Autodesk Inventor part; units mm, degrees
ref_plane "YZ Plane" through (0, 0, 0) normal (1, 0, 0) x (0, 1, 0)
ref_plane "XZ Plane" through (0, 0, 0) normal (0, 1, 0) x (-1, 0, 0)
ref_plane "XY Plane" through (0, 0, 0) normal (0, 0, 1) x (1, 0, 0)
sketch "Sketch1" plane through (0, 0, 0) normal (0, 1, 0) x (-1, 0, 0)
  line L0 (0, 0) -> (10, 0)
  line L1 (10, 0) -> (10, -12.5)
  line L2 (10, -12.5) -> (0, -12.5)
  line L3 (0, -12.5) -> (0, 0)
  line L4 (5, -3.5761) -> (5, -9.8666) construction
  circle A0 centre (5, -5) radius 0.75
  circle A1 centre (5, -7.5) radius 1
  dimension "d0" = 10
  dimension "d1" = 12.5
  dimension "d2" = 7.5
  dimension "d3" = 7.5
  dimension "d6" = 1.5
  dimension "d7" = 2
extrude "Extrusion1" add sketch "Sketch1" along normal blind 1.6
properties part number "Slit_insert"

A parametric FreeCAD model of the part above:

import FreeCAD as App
import Part
import Sketcher
from FreeCAD import Vector

doc = App.newDocument("Part")
body = doc.addObject("PartDesign::Body", "Body")

sketch1 = body.newObject("Sketcher::SketchObject", "Sketch")
sketch1.AttachmentSupport = (doc.getObject("XZ_Plane"), [""])
sketch1.MapMode = "FlatFace"
sketch1.addGeometry(Part.LineSegment(Vector(-10, 0, 0), Vector(0, 0, 0)), False)
sketch1.addGeometry(Part.LineSegment(Vector(0, 0, 0), Vector(0, -12.5, 0)), False)
sketch1.addGeometry(Part.LineSegment(Vector(0, -12.5, 0), Vector(-10, -12.5, 0)), False)
sketch1.addGeometry(Part.LineSegment(Vector(-10, -12.5, 0), Vector(-10, 0, 0)), False)
sketch1.addGeometry(Part.Circle(Vector(-5, -7.5, 0), Vector(0, 0, 1), 1), False)
sketch1.addGeometry(Part.Circle(Vector(-5, -5, 0), Vector(0, 0, 1), 0.75), False)
sketch1.addConstraint(Sketcher.Constraint("Coincident", 0, 2, 1, 1))
sketch1.addConstraint(Sketcher.Constraint("Coincident", 1, 2, 2, 1))
sketch1.addConstraint(Sketcher.Constraint("Coincident", 2, 2, 3, 1))
sketch1.addConstraint(Sketcher.Constraint("Coincident", 3, 2, 0, 1))
sketch1.addConstraint(Sketcher.Constraint("Horizontal", 0))
sketch1.addConstraint(Sketcher.Constraint("Vertical", 1))
sketch1.addConstraint(Sketcher.Constraint("Horizontal", 2))
sketch1.addConstraint(Sketcher.Constraint("Vertical", 3))
sketch1.addConstraint(Sketcher.Constraint("Coincident", 0, 2, -1, 1))
sketch1.addConstraint(Sketcher.Constraint("Vertical", 4, 3, 5, 3))
sketch1.addConstraint(Sketcher.Constraint("Diameter", 4, 2.0))
sketch1.addConstraint(Sketcher.Constraint("Diameter", 5, 1.5))
sketch1.addConstraint(Sketcher.Constraint("DistanceX", 0, 1, 0, 2, 10.0))
sketch1.addConstraint(Sketcher.Constraint("DistanceY", 1, 2, 1, 1, 12.5))
sketch1.addConstraint(Sketcher.Constraint("DistanceY", 4, 3, -1, 1, 7.5))
sketch1.addConstraint(Sketcher.Constraint("DistanceY", 1, 2, 5, 3, 7.5))
sketch1.addConstraint(Sketcher.Constraint("DistanceX", 4, 3, -1, 1, 5.0))
pad1 = body.newObject("PartDesign::Pad", "Pad")
pad1.Profile = sketch1
pad1.Length = 1.6
pad1.Reversed = True

doc.recompute()
